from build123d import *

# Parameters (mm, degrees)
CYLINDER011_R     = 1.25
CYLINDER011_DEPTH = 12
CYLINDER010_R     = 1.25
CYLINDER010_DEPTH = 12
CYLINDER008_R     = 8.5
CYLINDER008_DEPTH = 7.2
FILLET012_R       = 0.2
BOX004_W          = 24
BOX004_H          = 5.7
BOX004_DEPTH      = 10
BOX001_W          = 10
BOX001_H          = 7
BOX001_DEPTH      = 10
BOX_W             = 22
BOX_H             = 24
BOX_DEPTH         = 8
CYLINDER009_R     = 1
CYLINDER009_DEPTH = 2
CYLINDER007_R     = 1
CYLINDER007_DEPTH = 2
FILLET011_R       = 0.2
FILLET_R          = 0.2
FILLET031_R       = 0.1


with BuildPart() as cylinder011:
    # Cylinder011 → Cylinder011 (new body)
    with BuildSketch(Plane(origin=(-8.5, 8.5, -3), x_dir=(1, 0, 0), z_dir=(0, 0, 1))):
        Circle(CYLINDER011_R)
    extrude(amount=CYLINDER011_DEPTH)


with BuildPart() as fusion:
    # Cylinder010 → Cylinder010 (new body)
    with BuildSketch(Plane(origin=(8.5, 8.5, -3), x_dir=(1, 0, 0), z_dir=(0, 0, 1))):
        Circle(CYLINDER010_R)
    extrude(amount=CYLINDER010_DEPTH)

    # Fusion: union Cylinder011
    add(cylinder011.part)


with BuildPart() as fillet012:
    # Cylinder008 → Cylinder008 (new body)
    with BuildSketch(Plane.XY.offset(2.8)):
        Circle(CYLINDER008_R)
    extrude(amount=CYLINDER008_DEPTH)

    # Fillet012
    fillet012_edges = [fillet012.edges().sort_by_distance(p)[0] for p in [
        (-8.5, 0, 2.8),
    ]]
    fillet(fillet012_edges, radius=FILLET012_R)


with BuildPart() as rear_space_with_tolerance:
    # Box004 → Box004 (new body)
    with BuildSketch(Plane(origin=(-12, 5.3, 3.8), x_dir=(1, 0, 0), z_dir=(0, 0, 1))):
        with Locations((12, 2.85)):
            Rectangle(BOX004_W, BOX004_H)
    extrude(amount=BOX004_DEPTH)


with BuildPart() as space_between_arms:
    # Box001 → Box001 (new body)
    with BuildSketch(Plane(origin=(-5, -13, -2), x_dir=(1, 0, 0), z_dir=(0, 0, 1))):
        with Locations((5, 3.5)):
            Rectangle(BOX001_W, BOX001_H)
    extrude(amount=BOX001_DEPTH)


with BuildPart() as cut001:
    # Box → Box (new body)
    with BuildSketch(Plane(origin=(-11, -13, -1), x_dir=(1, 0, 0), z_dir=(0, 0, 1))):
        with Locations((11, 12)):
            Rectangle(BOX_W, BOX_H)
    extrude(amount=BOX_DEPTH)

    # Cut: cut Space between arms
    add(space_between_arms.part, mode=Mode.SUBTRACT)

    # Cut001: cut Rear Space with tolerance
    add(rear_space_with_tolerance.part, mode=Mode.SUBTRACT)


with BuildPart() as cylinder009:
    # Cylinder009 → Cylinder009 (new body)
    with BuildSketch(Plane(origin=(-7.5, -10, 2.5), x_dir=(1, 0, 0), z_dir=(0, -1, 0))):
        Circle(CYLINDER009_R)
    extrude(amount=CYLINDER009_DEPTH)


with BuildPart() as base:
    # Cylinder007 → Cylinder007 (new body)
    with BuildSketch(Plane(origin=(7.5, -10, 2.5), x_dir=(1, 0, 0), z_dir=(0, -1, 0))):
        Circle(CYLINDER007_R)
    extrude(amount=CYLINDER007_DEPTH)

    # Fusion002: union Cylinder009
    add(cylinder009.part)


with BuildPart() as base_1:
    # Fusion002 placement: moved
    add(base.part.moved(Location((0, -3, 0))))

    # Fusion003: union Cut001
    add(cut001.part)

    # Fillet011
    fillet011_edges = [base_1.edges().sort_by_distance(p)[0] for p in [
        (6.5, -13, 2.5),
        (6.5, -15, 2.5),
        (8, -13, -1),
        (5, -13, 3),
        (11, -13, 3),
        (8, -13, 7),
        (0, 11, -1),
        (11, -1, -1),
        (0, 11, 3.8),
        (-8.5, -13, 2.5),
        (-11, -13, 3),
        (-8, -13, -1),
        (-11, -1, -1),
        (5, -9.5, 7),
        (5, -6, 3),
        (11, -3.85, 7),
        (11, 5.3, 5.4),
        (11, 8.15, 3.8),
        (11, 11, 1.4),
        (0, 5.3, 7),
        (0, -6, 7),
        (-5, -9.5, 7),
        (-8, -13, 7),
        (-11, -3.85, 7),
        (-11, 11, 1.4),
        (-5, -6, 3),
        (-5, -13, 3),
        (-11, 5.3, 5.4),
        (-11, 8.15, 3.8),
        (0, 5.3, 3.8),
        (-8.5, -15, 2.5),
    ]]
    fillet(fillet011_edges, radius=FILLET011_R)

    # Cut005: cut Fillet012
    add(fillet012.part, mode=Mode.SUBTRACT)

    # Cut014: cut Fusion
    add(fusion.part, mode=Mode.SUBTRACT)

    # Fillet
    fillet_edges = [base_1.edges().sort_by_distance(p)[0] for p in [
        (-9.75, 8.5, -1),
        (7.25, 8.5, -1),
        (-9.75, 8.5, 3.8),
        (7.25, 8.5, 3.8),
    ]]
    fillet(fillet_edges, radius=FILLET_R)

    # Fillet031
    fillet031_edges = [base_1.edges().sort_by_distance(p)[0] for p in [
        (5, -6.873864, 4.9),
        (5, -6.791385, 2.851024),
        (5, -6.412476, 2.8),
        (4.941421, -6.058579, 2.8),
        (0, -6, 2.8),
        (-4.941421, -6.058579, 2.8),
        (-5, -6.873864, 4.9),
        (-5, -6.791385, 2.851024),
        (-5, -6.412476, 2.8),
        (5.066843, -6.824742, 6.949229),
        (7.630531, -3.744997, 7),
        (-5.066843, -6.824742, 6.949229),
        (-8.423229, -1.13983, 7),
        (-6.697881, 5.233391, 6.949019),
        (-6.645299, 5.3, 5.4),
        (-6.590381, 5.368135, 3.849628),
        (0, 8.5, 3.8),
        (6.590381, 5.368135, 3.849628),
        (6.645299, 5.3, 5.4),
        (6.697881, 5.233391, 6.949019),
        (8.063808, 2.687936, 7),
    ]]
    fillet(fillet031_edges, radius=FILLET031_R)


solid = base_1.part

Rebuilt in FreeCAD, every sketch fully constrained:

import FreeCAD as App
import Part
import Sketcher

V = App.Vector


def edges_at(feature, points):
    """Names of the edges that pass closest to the given points."""
    edges = feature.Shape.Edges
    near = lambda p: min(range(len(edges)), key=lambda i: edges[i].distToShape(Part.Vertex(*p))[0])
    return sorted({f"Edge{near(p) + 1}" for p in points})

doc = App.newDocument("Part")
body = doc.addObject("PartDesign::Body", "Body")

sketch1 = body.newObject("Sketcher::SketchObject", "Sketch")
sketch1.AttachmentSupport = (doc.getObject("XY_Plane"), [""])
sketch1.MapMode = "FlatFace"
sketch1.AttachmentOffset = App.Placement(V(0, 0, -3), App.Rotation())
sketch1.addGeometry(Part.Circle(V(-8.5, 8.5, 0), V(0, 0, 1), 1.2), False)
sketch1.addConstraint(Sketcher.Constraint("Diameter", 0, 2.5))
sketch1.addConstraint(Sketcher.Constraint("DistanceX", 0, 3, -1, 1, 8.5))
sketch1.addConstraint(Sketcher.Constraint("DistanceY", -1, 1, 0, 3, 8.5))
pad1 = body.newObject("PartDesign::Pad", "Pad")
pad1.Profile = sketch1
pad1.Length = 12
body2 = doc.addObject("PartDesign::Body", "Body001")
body2.AllowCompound = True

sketch2 = body2.newObject("Sketcher::SketchObject", "Sketch001")
sketch2.AttachmentSupport = (doc.getObject("XY_Plane001"), [""])
sketch2.MapMode = "FlatFace"
sketch2.AttachmentOffset = App.Placement(V(0, 0, -3), App.Rotation())
sketch2.addGeometry(Part.Circle(V(8.5, 8.5, 0), V(0, 0, 1), 1.2), False)
sketch2.addConstraint(Sketcher.Constraint("Diameter", 0, 2.5))
sketch2.addConstraint(Sketcher.Constraint("DistanceX", -1, 1, 0, 3, 8.5))
sketch2.addConstraint(Sketcher.Constraint("DistanceY", -1, 1, 0, 3, 8.5))
pad2 = body2.newObject("PartDesign::Pad", "Pad001")
pad2.Profile = sketch2
pad2.Length = 12
doc.recompute()

boolean = body2.newObject("PartDesign::Boolean", "Boolean")
boolean.Type = "Fuse"
boolean.addObjects([body])
body3 = doc.addObject("PartDesign::Body", "Body002")

sketch3 = body3.newObject("Sketcher::SketchObject", "Sketch002")
sketch3.AttachmentSupport = (doc.getObject("XY_Plane002"), [""])
sketch3.MapMode = "FlatFace"
sketch3.AttachmentOffset = App.Placement(V(0, 0, 2.8), App.Rotation())
sketch3.addGeometry(Part.Circle(V(0, 0, 0), V(0, 0, 1), 8), False)
sketch3.addConstraint(Sketcher.Constraint("Coincident", 0, 3, -1, 1))
sketch3.addConstraint(Sketcher.Constraint("Diameter", 0, 17.0))
pad3 = body3.newObject("PartDesign::Pad", "Pad002")
pad3.Profile = sketch3
pad3.Length = 7.2
doc.recompute()

fillet = body3.newObject("PartDesign::Fillet", "Fillet")
fillet.Base = (pad3, edges_at(pad3, [(-8.5, 0, 2.8)]))
fillet.Radius = 0.2
body4 = doc.addObject("PartDesign::Body", "Body003")

sketch4 = body4.newObject("Sketcher::SketchObject", "Sketch003")
sketch4.AttachmentSupport = (doc.getObject("XY_Plane003"), [""])
sketch4.MapMode = "FlatFace"
sketch4.AttachmentOffset = App.Placement(V(0, 0, 3.8), App.Rotation())
sketch4.addGeometry(Part.LineSegment(V(-12, 11, 0), V(-12, 5, 0)), False)
sketch4.addGeometry(Part.LineSegment(V(-12, 5, 0), V(12, 5, 0)), False)
sketch4.addGeometry(Part.LineSegment(V(12, 5, 0), V(12, 11, 0)), False)
sketch4.addGeometry(Part.LineSegment(V(12, 11, 0), V(-12, 11, 0)), False)
sketch4.addConstraint(Sketcher.Constraint("Coincident", 0, 2, 1, 1))
sketch4.addConstraint(Sketcher.Constraint("Coincident", 1, 2, 2, 1))
sketch4.addConstraint(Sketcher.Constraint("Coincident", 2, 2, 3, 1))
sketch4.addConstraint(Sketcher.Constraint("Coincident", 3, 2, 0, 1))
sketch4.addConstraint(Sketcher.Constraint("Vertical", 0))
sketch4.addConstraint(Sketcher.Constraint("Horizontal", 1))
sketch4.addConstraint(Sketcher.Constraint("Vertical", 2))
sketch4.addConstraint(Sketcher.Constraint("Horizontal", 3))
sketch4.addConstraint(Sketcher.Constraint("DistanceX", 1, 1, 1, 2, 24.0))
sketch4.addConstraint(Sketcher.Constraint("DistanceY", 0, 2, 0, 1, 5.7))
sketch4.addConstraint(Sketcher.Constraint("DistanceX", 0, 2, -1, 1, 12.0))
sketch4.addConstraint(Sketcher.Constraint("DistanceY", -1, 1, 2, 2, 11.0))
pad4 = body4.newObject("PartDesign::Pad", "Pad003")
pad4.Profile = sketch4
pad4.Length = 10
body5 = doc.addObject("PartDesign::Body", "Body004")

sketch5 = body5.newObject("Sketcher::SketchObject", "Sketch004")
sketch5.AttachmentSupport = (doc.getObject("XY_Plane004"), [""])
sketch5.MapMode = "FlatFace"
sketch5.AttachmentOffset = App.Placement(V(0, 0, -2), App.Rotation())
sketch5.addGeometry(Part.LineSegment(V(-5, -6, 0), V(-5, -13, 0)), False)
sketch5.addGeometry(Part.LineSegment(V(-5, -13, 0), V(5, -13, 0)), False)
sketch5.addGeometry(Part.LineSegment(V(5, -13, 0), V(5, -6, 0)), False)
sketch5.addGeometry(Part.LineSegment(V(5, -6, 0), V(-5, -6, 0)), False)
sketch5.addConstraint(Sketcher.Constraint("Coincident", 0, 2, 1, 1))
sketch5.addConstraint(Sketcher.Constraint("Coincident", 1, 2, 2, 1))
sketch5.addConstraint(Sketcher.Constraint("Coincident", 2, 2, 3, 1))
sketch5.addConstraint(Sketcher.Constraint("Coincident", 3, 2, 0, 1))
sketch5.addConstraint(Sketcher.Constraint("Vertical", 0))
sketch5.addConstraint(Sketcher.Constraint("Horizontal", 1))
sketch5.addConstraint(Sketcher.Constraint("Vertical", 2))
sketch5.addConstraint(Sketcher.Constraint("Horizontal", 3))
sketch5.addConstraint(Sketcher.Constraint("DistanceX", 1, 1, 1, 2, 10.0))
sketch5.addConstraint(Sketcher.Constraint("DistanceY", 0, 2, 0, 1, 7.0))
sketch5.addConstraint(Sketcher.Constraint("DistanceX", 0, 2, -1, 1, 5.0))
sketch5.addConstraint(Sketcher.Constraint("DistanceY", 0, 2, -1, 1, 13.0))
pad5 = body5.newObject("PartDesign::Pad", "Pad004")
pad5.Profile = sketch5
pad5.Length = 10
body6 = doc.addObject("PartDesign::Body", "Body005")

sketch6 = body6.newObject("Sketcher::SketchObject", "Sketch005")
sketch6.AttachmentSupport = (doc.getObject("XY_Plane005"), [""])
sketch6.MapMode = "FlatFace"
sketch6.AttachmentOffset = App.Placement(V(0, 0, -1), App.Rotation())
sketch6.addGeometry(Part.LineSegment(V(-11, 11, 0), V(-11, -13, 0)), False)
sketch6.addGeometry(Part.LineSegment(V(-11, -13, 0), V(11, -13, 0)), False)
sketch6.addGeometry(Part.LineSegment(V(11, -13, 0), V(11, 11, 0)), False)
sketch6.addGeometry(Part.LineSegment(V(11, 11, 0), V(-11, 11, 0)), False)
sketch6.addConstraint(Sketcher.Constraint("Coincident", 0, 2, 1, 1))
sketch6.addConstraint(Sketcher.Constraint("Coincident", 1, 2, 2, 1))
sketch6.addConstraint(Sketcher.Constraint("Coincident", 2, 2, 3, 1))
sketch6.addConstraint(Sketcher.Constraint("Coincident", 3, 2, 0, 1))
sketch6.addConstraint(Sketcher.Constraint("Vertical", 0))
sketch6.addConstraint(Sketcher.Constraint("Horizontal", 1))
sketch6.addConstraint(Sketcher.Constraint("Vertical", 2))
sketch6.addConstraint(Sketcher.Constraint("Horizontal", 3))
sketch6.addConstraint(Sketcher.Constraint("DistanceX", 1, 1, 1, 2, 22.0))
sketch6.addConstraint(Sketcher.Constraint("DistanceY", 0, 2, 0, 1, 24.0))
sketch6.addConstraint(Sketcher.Constraint("DistanceX", 0, 2, -1, 1, 11.0))
sketch6.addConstraint(Sketcher.Constraint("DistanceY", 0, 2, -1, 1, 13.0))
pad6 = body6.newObject("PartDesign::Pad", "Pad005")
pad6.Profile = sketch6
pad6.Length = 8
doc.recompute()

boolean2 = body6.newObject("PartDesign::Boolean", "Boolean001")
boolean2.Type = "Cut"
boolean2.addObjects([body5])
doc.recompute()

boolean3 = body6.newObject("PartDesign::Boolean", "Boolean002")
boolean3.Type = "Cut"
boolean3.addObjects([body4])
body7 = doc.addObject("PartDesign::Body", "Body006")

sketch7 = body7.newObject("Sketcher::SketchObject", "Sketch006")
sketch7.AttachmentSupport = (doc.getObject("XZ_Plane006"), [""])
sketch7.MapMode = "FlatFace"
sketch7.AttachmentOffset = App.Placement(V(0, 0, 10), App.Rotation())
sketch7.addGeometry(Part.Circle(V(-7.5, 2.5, 0), V(0, 0, 1), 1), False)
sketch7.addConstraint(Sketcher.Constraint("Diameter", 0, 2.0))
sketch7.addConstraint(Sketcher.Constraint("DistanceX", 0, 3, -1, 1, 7.5))
sketch7.addConstraint(Sketcher.Constraint("DistanceY", -1, 1, 0, 3, 2.5))
pad7 = body7.newObject("PartDesign::Pad", "Pad006")
pad7.Profile = sketch7
pad7.Length = 2
body8 = doc.addObject("PartDesign::Body", "Body007")
body8.AllowCompound = True

sketch8 = body8.newObject("Sketcher::SketchObject", "Sketch007")
sketch8.AttachmentSupport = (doc.getObject("XZ_Plane007"), [""])
sketch8.MapMode = "FlatFace"
sketch8.AttachmentOffset = App.Placement(V(0, 0, 10), App.Rotation())
sketch8.addGeometry(Part.Circle(V(7.5, 2.5, 0), V(0, 0, 1), 1), False)
sketch8.addConstraint(Sketcher.Constraint("Diameter", 0, 2.0))
sketch8.addConstraint(Sketcher.Constraint("DistanceX", -1, 1, 0, 3, 7.5))
sketch8.addConstraint(Sketcher.Constraint("DistanceY", -1, 1, 0, 3, 2.5))
pad8 = body8.newObject("PartDesign::Pad", "Pad007")
pad8.Profile = sketch8
pad8.Length = 2
doc.recompute()

boolean4 = body8.newObject("PartDesign::Boolean", "Boolean003")
boolean4.Type = "Fuse"
boolean4.addObjects([body7])
body9 = doc.addObject("PartDesign::Body", "Body008")
body9.AllowCompound = True
doc.recompute()

body8.Placement = App.Placement(V(0, -3, 0), App.Rotation(V(0, 0, 1), 0))
boolean5 = body9.newObject("PartDesign::Boolean", "Boolean004")
boolean5.Type = "Fuse"
boolean5.addObjects([body8])
doc.recompute()

boolean6 = body9.newObject("PartDesign::Boolean", "Boolean005")
boolean6.Type = "Fuse"
boolean6.addObjects([body6])
doc.recompute()

fillet2 = body9.newObject("PartDesign::Fillet", "Fillet001")
fillet2.Base = (boolean6, edges_at(boolean6, [
    (6.5, -13, 2.5),
    (6.5, -15, 2.5),
    (8, -13, -1),
    (5, -13, 3),
    (11, -13, 3),
    (8, -13, 7),
    (0, 11, -1),
    (11, -1, -1),
    (0, 11, 3.8),
    (-8.5, -13, 2.5),
    (-11, -13, 3),
    (-8, -13, -1),
    (-11, -1, -1),
    (5, -9.5, 7),
    (5, -6, 3),
    (11, -3.85, 7),
    (11, 5.3, 5.4),
    (11, 8.15, 3.8),
    (11, 11, 1.4),
    (0, 5.3, 7),
    (0, -6, 7),
    (-5, -9.5, 7),
    (-8, -13, 7),
    (-11, -3.85, 7),
    (-11, 11, 1.4),
    (-5, -6, 3),
    (-5, -13, 3),
    (-11, 5.3, 5.4),
    (-11, 8.15, 3.8),
    (0, 5.3, 3.8),
    (-8.5, -15, 2.5),
]))
fillet2.Radius = 0.2
doc.recompute()

boolean7 = body9.newObject("PartDesign::Boolean", "Boolean006")
boolean7.Type = "Cut"
boolean7.addObjects([body3])
doc.recompute()

boolean8 = body9.newObject("PartDesign::Boolean", "Boolean007")
boolean8.Type = "Cut"
boolean8.addObjects([body2])
doc.recompute()

fillet3 = body9.newObject("PartDesign::Fillet", "Fillet002")
fillet3.Base = (boolean8, edges_at(boolean8, [
    (-9.75, 8.5, -1),
    (7.25, 8.5, -1),
    (-9.75, 8.5, 3.8),
    (7.25, 8.5, 3.8),
]))
fillet3.Radius = 0.2
doc.recompute()

fillet4 = body9.newObject("PartDesign::Fillet", "Fillet003")
fillet4.Base = (fillet3, edges_at(fillet3, [
    (5, -6.874, 4.9),
    (5, -6.791, 2.851),
    (5, -6.412, 2.8),
    (4.941, -6.059, 2.8),
    (0, -6, 2.8),
    (-4.941, -6.059, 2.8),
    (-5, -6.874, 4.9),
    (-5, -6.791, 2.851),
    (-5, -6.412, 2.8),
    (5.067, -6.825, 6.949),
    (8.423, -1.14, 7),
    (-5.067, -6.825, 6.949),
    (-8.423, -1.14, 7),
    (-6.698, 5.233, 6.949),
    (-6.645, 5.3, 5.4),
    (-6.59, 5.368, 3.85),
    (0, 8.5, 3.8),
    (6.59, 5.368, 3.85),
    (6.645, 5.3, 5.4),
    (6.698, 5.233, 6.949),
    (8.423, -1.14, 7),
]))
fillet4.Radius = 0.1

doc.recompute()
